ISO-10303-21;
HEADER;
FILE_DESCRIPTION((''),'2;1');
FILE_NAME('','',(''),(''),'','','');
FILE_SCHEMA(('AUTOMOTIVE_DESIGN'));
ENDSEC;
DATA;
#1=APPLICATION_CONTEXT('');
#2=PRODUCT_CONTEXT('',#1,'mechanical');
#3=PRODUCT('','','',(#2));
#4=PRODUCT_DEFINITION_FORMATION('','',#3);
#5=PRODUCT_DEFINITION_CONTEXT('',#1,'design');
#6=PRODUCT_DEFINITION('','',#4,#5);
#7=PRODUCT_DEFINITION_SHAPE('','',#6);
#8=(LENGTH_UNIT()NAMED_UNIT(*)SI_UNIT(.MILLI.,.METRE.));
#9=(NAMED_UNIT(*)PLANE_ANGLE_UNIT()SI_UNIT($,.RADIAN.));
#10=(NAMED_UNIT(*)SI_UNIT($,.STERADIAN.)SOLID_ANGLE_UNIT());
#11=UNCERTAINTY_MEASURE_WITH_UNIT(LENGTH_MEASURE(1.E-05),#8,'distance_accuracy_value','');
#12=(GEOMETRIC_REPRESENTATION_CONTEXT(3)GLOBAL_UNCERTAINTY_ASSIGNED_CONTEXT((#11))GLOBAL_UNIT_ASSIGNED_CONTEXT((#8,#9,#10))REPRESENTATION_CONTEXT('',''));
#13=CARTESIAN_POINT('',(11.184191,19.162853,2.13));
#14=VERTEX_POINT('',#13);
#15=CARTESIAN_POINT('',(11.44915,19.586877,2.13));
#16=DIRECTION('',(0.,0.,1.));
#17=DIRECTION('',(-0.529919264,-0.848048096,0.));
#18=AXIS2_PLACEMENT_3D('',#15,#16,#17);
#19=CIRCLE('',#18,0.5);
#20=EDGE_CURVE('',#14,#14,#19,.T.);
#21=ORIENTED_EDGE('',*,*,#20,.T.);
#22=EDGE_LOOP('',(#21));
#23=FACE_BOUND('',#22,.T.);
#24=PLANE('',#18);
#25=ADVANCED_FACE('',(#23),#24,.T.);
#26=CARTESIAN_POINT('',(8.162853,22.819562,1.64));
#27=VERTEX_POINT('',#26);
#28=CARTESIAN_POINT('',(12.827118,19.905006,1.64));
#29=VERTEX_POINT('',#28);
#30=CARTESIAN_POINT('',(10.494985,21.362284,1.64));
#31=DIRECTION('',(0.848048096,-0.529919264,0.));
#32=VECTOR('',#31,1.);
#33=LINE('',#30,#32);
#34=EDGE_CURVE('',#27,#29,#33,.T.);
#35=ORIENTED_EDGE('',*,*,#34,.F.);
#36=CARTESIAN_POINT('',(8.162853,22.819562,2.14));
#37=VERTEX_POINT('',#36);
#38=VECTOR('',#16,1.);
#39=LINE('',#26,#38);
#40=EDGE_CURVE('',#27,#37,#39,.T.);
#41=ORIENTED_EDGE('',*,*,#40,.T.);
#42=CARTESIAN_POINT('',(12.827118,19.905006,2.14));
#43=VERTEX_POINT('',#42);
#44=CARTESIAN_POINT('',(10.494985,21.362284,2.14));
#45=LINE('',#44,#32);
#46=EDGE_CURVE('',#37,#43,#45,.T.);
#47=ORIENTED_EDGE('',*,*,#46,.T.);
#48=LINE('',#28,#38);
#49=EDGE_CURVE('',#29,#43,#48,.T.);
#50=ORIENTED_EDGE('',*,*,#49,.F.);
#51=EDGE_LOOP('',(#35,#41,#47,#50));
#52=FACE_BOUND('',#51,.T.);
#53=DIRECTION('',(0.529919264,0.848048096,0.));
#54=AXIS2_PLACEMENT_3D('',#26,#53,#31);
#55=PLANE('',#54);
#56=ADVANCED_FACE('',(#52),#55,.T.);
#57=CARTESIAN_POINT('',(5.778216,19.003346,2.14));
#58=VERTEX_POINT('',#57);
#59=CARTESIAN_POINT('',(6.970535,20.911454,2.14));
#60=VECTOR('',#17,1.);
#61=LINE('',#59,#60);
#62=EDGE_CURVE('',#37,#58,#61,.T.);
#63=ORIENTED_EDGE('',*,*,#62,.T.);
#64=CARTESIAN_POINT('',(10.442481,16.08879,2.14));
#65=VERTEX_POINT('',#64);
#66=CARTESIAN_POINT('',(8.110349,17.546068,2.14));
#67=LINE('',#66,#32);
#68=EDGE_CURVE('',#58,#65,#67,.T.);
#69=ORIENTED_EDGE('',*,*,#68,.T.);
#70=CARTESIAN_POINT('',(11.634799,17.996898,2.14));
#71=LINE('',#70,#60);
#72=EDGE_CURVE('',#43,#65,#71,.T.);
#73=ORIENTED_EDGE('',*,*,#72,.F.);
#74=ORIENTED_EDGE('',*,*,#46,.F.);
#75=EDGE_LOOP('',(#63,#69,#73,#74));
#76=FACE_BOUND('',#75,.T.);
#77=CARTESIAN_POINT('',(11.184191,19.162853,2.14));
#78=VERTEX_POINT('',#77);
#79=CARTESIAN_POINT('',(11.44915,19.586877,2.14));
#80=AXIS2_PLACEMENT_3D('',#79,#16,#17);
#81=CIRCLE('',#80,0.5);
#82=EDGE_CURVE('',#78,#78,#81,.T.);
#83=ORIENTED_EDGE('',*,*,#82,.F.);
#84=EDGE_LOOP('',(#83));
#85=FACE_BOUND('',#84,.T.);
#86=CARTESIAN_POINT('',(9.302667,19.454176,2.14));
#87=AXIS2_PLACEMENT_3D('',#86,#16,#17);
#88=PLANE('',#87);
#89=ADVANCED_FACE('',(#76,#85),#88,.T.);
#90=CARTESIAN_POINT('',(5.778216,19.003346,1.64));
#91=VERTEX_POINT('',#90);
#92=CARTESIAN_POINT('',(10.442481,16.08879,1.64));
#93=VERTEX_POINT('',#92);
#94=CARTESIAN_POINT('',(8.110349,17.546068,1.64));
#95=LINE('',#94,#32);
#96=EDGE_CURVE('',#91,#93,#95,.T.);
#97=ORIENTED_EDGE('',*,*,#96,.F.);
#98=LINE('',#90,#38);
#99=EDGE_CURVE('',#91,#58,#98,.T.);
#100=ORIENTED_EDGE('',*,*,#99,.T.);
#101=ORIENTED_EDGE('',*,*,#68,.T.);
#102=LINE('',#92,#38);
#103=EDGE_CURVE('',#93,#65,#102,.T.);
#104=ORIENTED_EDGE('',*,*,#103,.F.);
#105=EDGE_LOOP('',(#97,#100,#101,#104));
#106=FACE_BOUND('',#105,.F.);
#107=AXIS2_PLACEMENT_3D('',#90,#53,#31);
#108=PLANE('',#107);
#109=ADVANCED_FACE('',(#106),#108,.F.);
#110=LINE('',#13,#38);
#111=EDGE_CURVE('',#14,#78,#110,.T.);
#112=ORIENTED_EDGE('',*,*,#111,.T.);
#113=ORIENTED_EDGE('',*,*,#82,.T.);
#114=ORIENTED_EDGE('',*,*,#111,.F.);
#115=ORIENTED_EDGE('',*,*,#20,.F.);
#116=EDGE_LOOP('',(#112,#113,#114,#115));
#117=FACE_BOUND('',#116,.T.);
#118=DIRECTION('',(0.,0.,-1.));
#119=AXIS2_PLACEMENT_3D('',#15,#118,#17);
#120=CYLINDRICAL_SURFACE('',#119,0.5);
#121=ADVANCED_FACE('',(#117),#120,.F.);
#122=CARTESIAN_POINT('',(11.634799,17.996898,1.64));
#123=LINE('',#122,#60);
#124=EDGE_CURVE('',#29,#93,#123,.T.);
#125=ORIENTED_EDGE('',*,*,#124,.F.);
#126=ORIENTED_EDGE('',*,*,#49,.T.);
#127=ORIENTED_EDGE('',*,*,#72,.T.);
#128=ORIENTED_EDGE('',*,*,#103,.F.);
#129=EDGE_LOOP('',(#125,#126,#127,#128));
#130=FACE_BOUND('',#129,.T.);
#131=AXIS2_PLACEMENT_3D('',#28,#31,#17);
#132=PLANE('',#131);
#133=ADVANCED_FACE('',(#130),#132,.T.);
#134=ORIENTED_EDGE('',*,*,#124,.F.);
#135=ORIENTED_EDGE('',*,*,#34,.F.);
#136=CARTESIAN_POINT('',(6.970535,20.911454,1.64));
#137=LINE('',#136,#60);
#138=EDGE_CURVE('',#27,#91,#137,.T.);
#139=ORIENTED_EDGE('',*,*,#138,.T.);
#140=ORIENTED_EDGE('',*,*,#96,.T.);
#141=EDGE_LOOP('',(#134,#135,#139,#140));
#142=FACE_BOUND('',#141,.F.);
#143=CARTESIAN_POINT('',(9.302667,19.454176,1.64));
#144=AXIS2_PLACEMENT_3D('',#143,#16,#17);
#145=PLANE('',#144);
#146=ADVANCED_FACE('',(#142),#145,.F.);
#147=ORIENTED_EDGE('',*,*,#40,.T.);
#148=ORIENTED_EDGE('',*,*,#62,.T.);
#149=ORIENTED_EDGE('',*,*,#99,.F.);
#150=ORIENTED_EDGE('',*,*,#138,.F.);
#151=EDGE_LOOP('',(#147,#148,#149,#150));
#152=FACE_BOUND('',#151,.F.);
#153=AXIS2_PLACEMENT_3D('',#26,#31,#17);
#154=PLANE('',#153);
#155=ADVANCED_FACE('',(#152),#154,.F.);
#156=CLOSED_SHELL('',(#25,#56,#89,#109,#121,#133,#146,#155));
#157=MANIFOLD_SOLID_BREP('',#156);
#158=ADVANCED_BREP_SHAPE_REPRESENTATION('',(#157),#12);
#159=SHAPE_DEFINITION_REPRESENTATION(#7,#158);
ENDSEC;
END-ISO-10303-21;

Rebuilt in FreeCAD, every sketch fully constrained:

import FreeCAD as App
import Part
import Sketcher

V = App.Vector

doc = App.newDocument("Part")
body = doc.addObject("PartDesign::Body", "Body")

sketch1 = body.newObject("Sketcher::SketchObject", "Sketch")
sketch1.AttachmentSupport = (doc.getObject("XY_Plane"), [""])
sketch1.MapMode = "FlatFace"
sketch1.AttachmentOffset = App.Placement(V(0, 0, 0.49), App.Rotation())
sketch1.addGeometry(Part.Circle(V(1, 4.5, 0), V(0, 0, 1), 0.5), False)
sketch1.addConstraint([
    Sketcher.Constraint("Diameter", 0, 1.0),
    Sketcher.Constraint("DistanceX", -1, 1, 0, 3, 1.0),
    Sketcher.Constraint("DistanceY", -1, 1, 0, 3, 4.5),
])
pad1 = body.newObject("PartDesign::Pad", "Pad")
pad1.Profile = sketch1
pad1.Length = 0.01
body2 = doc.addObject("PartDesign::Body", "Body001")

sketch2 = body2.newObject("Sketcher::SketchObject", "Sketch001")
sketch2.AttachmentSupport = (doc.getObject("XY_Plane001"), [""])
sketch2.MapMode = "FlatFace"
sketch2.addGeometry([
    Part.LineSegment(V(0, 5.5, 0), V(0, 0, 0)),
    Part.LineSegment(V(0, 0, 0), V(4.5, 0, 0)),
    Part.LineSegment(V(4.5, 0, 0), V(4.5, 5.5, 0)),
    Part.LineSegment(V(4.5, 5.5, 0), V(0, 5.5, 0)),
], False)
sketch2.addConstraint([
    Sketcher.Constraint("Coincident", 0, 2, 1, 1),
    Sketcher.Constraint("Coincident", 1, 2, 2, 1),
    Sketcher.Constraint("Coincident", 2, 2, 3, 1),
    Sketcher.Constraint("Coincident", 3, 2, 0, 1),
    Sketcher.Constraint("Vertical", 0),
    Sketcher.Constraint("Horizontal", 1),
    Sketcher.Constraint("Vertical", 2),
    Sketcher.Constraint("Horizontal", 3),
    Sketcher.Constraint("Coincident", 0, 2, -1, 1),
    Sketcher.Constraint("DistanceX", 1, 1, 1, 2, 4.5),
    Sketcher.Constraint("DistanceY", 0, 2, 0, 1, 5.5),
])
pad2 = body2.newObject("PartDesign::Pad", "Pad001")
pad2.Profile = sketch2
pad2.Length = 0.5
doc.recompute()

boolean = body2.newObject("PartDesign::Boolean", "Boolean")
boolean.Type = "Cut"
boolean.addObjects([body])
body3 = doc.addObject("PartDesign::Body", "Body002")
doc.recompute()

body2.Placement = App.Placement(V(8.162853, 22.819562, 1.64), App.Rotation(V(0, 0, -1), 122))
boolean2 = body3.newObject("PartDesign::Boolean", "Boolean001")
boolean2.Type = "Fuse"
boolean2.addObjects([body2])

doc.recompute()
